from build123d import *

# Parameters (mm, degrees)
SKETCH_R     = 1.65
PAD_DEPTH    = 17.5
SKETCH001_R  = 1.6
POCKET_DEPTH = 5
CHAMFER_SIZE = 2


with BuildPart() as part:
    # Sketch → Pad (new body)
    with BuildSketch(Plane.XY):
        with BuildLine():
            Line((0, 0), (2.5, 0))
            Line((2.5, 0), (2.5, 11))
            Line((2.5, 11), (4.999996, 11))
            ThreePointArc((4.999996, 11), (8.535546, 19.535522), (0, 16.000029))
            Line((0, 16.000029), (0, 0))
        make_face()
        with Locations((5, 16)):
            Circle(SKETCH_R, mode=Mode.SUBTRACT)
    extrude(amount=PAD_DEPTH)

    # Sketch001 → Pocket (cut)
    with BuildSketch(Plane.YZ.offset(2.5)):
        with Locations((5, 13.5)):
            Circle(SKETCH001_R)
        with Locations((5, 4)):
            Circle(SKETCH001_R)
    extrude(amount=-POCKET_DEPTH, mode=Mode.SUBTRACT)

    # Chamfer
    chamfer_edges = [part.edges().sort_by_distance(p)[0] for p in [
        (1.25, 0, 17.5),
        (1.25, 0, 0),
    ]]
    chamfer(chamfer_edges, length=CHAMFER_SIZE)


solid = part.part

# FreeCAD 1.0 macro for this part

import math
import FreeCAD as App
import Part
import Sketcher
from FreeCAD import Vector
Q = App.Units.Quantity


def edges_at(feature, points):
    """Names of the edges that pass closest to the given points."""
    edges = feature.Shape.Edges
    near = lambda p: min(range(len(edges)), key=lambda i: edges[i].distToShape(Part.Vertex(*p))[0])
    return sorted({f"Edge{near(p) + 1}" for p in points})

doc = App.newDocument("Part")
params = doc.addObject("Spreadsheet::Sheet", "Params")
for row, (alias, value) in enumerate([
    ("sketch1_radius", "5 mm"),
    ("sketch1_diameter", "3.3 mm"),
    ("sketch1_height", "11 mm"),
    ("sketch1_width", "2.5 mm"),
    ("pad1_length", "17.5 mm"),
    ("sketch2_diameter", "3.2 mm"),
    ("pocket1_length", "5 mm"),
    ("chamfer_size", "2 mm"),
], start=1):
    params.set(f"A{row}", alias)
    params.set(f"B{row}", "=" + value)
    params.setAlias(f"B{row}", alias)

body = doc.addObject("PartDesign::Body", "Body")

sketch1 = body.newObject("Sketcher::SketchObject", "Sketch")
sketch1.AttachmentSupport = (doc.getObject("XY_Plane"), [""])
sketch1.MapMode = "FlatFace"
sketch1.addGeometry([
    Part.LineSegment(Vector(0, 0, 0), Vector(2.5, 0, 0)),
    Part.LineSegment(Vector(2.5, 0, 0), Vector(2.5, 11, 0)),
    Part.LineSegment(Vector(2.5, 11, 0), Vector(5, 11, 0)),
    Part.ArcOfCircle(Part.Circle(Vector(5, 16, 0), Vector(0, 0, 1), 5), math.radians(-90), math.radians(180)),
    Part.LineSegment(Vector(0, 16, 0), Vector(0, 0, 0)),
    Part.Circle(Vector(5, 16, 0), Vector(0, 0, 1), 1.6),
], False)
sketch1.addConstraint([
    Sketcher.Constraint("Coincident", 0, 2, 1, 1),
    Sketcher.Constraint("Coincident", 1, 2, 2, 1),
    Sketcher.Constraint("Tangent", 2, 2, 3, 1),
    Sketcher.Constraint("Coincident", 3, 2, 4, 1),
    Sketcher.Constraint("Coincident", 4, 2, 0, 1),
    Sketcher.Constraint("Horizontal", 0),
    Sketcher.Constraint("Vertical", 1),
    Sketcher.Constraint("Horizontal", 2),
    Sketcher.Constraint("Vertical", 4),
    Sketcher.Constraint("Coincident", 4, 2, -1, 1),
    Sketcher.Constraint("Coincident", 5, 3, 3, 3),
    Sketcher.Constraint("Radius", 3, Q("5 mm")),
    Sketcher.Constraint("Diameter", 5, Q("3.3 mm")),
    Sketcher.Constraint("DistanceY", 1, 1, 1, 2, Q("11 mm")),
    Sketcher.Constraint("DistanceX", 0, 1, 0, 2, Q("2.5 mm")),
    Sketcher.Constraint("DistanceY", 4, 2, 4, 1, Q("16.000029 mm")),
])
sketch1.setExpression("Constraints[11]", "Params.sketch1_radius")
sketch1.setExpression("Constraints[12]", "Params.sketch1_diameter")
sketch1.setExpression("Constraints[13]", "Params.sketch1_height")
sketch1.setExpression("Constraints[14]", "Params.sketch1_width")
pad1 = body.newObject("PartDesign::Pad", "Pad")
pad1.Profile = sketch1
pad1.setExpression("Length", "Params.pad1_length")

sketch2 = body.newObject("Sketcher::SketchObject", "Sketch001")
sketch2.AttachmentSupport = (doc.getObject("YZ_Plane"), [""])
sketch2.MapMode = "FlatFace"
sketch2.AttachmentOffset = App.Placement(Vector(0, 0, 2.5), App.Rotation())
sketch2.addGeometry([
    Part.Circle(Vector(5, 13.5, 0), Vector(0, 0, 1), 1.6),
    Part.Circle(Vector(5, 4, 0), Vector(0, 0, 1), 1.6),
], False)
sketch2.addConstraint([
    Sketcher.Constraint("Equal", 0, 1),
    Sketcher.Constraint("Vertical", 0, 3, 1, 3),
    Sketcher.Constraint("Diameter", 0, Q("3.2 mm")),
    Sketcher.Constraint("DistanceX", -1, 1, 0, 3, Q("5 mm")),
    Sketcher.Constraint("DistanceY", -1, 1, 1, 3, Q("4 mm")),
    Sketcher.Constraint("DistanceY", -1, 1, 0, 3, Q("13.5 mm")),
])
sketch2.setExpression("Constraints[2]", "Params.sketch2_diameter")
pocket1 = body.newObject("PartDesign::Pocket", "Pocket")
pocket1.Profile = sketch2
pocket1.setExpression("Length", "Params.pocket1_length")
doc.recompute()

chamfer = body.newObject("PartDesign::Chamfer", "Chamfer")
chamfer.Base = (pocket1, edges_at(pocket1, [(1.25, 0, 17.5), (1.25, 0, 0)]))
chamfer.setExpression("Size", "Params.chamfer_size")

doc.recompute()
